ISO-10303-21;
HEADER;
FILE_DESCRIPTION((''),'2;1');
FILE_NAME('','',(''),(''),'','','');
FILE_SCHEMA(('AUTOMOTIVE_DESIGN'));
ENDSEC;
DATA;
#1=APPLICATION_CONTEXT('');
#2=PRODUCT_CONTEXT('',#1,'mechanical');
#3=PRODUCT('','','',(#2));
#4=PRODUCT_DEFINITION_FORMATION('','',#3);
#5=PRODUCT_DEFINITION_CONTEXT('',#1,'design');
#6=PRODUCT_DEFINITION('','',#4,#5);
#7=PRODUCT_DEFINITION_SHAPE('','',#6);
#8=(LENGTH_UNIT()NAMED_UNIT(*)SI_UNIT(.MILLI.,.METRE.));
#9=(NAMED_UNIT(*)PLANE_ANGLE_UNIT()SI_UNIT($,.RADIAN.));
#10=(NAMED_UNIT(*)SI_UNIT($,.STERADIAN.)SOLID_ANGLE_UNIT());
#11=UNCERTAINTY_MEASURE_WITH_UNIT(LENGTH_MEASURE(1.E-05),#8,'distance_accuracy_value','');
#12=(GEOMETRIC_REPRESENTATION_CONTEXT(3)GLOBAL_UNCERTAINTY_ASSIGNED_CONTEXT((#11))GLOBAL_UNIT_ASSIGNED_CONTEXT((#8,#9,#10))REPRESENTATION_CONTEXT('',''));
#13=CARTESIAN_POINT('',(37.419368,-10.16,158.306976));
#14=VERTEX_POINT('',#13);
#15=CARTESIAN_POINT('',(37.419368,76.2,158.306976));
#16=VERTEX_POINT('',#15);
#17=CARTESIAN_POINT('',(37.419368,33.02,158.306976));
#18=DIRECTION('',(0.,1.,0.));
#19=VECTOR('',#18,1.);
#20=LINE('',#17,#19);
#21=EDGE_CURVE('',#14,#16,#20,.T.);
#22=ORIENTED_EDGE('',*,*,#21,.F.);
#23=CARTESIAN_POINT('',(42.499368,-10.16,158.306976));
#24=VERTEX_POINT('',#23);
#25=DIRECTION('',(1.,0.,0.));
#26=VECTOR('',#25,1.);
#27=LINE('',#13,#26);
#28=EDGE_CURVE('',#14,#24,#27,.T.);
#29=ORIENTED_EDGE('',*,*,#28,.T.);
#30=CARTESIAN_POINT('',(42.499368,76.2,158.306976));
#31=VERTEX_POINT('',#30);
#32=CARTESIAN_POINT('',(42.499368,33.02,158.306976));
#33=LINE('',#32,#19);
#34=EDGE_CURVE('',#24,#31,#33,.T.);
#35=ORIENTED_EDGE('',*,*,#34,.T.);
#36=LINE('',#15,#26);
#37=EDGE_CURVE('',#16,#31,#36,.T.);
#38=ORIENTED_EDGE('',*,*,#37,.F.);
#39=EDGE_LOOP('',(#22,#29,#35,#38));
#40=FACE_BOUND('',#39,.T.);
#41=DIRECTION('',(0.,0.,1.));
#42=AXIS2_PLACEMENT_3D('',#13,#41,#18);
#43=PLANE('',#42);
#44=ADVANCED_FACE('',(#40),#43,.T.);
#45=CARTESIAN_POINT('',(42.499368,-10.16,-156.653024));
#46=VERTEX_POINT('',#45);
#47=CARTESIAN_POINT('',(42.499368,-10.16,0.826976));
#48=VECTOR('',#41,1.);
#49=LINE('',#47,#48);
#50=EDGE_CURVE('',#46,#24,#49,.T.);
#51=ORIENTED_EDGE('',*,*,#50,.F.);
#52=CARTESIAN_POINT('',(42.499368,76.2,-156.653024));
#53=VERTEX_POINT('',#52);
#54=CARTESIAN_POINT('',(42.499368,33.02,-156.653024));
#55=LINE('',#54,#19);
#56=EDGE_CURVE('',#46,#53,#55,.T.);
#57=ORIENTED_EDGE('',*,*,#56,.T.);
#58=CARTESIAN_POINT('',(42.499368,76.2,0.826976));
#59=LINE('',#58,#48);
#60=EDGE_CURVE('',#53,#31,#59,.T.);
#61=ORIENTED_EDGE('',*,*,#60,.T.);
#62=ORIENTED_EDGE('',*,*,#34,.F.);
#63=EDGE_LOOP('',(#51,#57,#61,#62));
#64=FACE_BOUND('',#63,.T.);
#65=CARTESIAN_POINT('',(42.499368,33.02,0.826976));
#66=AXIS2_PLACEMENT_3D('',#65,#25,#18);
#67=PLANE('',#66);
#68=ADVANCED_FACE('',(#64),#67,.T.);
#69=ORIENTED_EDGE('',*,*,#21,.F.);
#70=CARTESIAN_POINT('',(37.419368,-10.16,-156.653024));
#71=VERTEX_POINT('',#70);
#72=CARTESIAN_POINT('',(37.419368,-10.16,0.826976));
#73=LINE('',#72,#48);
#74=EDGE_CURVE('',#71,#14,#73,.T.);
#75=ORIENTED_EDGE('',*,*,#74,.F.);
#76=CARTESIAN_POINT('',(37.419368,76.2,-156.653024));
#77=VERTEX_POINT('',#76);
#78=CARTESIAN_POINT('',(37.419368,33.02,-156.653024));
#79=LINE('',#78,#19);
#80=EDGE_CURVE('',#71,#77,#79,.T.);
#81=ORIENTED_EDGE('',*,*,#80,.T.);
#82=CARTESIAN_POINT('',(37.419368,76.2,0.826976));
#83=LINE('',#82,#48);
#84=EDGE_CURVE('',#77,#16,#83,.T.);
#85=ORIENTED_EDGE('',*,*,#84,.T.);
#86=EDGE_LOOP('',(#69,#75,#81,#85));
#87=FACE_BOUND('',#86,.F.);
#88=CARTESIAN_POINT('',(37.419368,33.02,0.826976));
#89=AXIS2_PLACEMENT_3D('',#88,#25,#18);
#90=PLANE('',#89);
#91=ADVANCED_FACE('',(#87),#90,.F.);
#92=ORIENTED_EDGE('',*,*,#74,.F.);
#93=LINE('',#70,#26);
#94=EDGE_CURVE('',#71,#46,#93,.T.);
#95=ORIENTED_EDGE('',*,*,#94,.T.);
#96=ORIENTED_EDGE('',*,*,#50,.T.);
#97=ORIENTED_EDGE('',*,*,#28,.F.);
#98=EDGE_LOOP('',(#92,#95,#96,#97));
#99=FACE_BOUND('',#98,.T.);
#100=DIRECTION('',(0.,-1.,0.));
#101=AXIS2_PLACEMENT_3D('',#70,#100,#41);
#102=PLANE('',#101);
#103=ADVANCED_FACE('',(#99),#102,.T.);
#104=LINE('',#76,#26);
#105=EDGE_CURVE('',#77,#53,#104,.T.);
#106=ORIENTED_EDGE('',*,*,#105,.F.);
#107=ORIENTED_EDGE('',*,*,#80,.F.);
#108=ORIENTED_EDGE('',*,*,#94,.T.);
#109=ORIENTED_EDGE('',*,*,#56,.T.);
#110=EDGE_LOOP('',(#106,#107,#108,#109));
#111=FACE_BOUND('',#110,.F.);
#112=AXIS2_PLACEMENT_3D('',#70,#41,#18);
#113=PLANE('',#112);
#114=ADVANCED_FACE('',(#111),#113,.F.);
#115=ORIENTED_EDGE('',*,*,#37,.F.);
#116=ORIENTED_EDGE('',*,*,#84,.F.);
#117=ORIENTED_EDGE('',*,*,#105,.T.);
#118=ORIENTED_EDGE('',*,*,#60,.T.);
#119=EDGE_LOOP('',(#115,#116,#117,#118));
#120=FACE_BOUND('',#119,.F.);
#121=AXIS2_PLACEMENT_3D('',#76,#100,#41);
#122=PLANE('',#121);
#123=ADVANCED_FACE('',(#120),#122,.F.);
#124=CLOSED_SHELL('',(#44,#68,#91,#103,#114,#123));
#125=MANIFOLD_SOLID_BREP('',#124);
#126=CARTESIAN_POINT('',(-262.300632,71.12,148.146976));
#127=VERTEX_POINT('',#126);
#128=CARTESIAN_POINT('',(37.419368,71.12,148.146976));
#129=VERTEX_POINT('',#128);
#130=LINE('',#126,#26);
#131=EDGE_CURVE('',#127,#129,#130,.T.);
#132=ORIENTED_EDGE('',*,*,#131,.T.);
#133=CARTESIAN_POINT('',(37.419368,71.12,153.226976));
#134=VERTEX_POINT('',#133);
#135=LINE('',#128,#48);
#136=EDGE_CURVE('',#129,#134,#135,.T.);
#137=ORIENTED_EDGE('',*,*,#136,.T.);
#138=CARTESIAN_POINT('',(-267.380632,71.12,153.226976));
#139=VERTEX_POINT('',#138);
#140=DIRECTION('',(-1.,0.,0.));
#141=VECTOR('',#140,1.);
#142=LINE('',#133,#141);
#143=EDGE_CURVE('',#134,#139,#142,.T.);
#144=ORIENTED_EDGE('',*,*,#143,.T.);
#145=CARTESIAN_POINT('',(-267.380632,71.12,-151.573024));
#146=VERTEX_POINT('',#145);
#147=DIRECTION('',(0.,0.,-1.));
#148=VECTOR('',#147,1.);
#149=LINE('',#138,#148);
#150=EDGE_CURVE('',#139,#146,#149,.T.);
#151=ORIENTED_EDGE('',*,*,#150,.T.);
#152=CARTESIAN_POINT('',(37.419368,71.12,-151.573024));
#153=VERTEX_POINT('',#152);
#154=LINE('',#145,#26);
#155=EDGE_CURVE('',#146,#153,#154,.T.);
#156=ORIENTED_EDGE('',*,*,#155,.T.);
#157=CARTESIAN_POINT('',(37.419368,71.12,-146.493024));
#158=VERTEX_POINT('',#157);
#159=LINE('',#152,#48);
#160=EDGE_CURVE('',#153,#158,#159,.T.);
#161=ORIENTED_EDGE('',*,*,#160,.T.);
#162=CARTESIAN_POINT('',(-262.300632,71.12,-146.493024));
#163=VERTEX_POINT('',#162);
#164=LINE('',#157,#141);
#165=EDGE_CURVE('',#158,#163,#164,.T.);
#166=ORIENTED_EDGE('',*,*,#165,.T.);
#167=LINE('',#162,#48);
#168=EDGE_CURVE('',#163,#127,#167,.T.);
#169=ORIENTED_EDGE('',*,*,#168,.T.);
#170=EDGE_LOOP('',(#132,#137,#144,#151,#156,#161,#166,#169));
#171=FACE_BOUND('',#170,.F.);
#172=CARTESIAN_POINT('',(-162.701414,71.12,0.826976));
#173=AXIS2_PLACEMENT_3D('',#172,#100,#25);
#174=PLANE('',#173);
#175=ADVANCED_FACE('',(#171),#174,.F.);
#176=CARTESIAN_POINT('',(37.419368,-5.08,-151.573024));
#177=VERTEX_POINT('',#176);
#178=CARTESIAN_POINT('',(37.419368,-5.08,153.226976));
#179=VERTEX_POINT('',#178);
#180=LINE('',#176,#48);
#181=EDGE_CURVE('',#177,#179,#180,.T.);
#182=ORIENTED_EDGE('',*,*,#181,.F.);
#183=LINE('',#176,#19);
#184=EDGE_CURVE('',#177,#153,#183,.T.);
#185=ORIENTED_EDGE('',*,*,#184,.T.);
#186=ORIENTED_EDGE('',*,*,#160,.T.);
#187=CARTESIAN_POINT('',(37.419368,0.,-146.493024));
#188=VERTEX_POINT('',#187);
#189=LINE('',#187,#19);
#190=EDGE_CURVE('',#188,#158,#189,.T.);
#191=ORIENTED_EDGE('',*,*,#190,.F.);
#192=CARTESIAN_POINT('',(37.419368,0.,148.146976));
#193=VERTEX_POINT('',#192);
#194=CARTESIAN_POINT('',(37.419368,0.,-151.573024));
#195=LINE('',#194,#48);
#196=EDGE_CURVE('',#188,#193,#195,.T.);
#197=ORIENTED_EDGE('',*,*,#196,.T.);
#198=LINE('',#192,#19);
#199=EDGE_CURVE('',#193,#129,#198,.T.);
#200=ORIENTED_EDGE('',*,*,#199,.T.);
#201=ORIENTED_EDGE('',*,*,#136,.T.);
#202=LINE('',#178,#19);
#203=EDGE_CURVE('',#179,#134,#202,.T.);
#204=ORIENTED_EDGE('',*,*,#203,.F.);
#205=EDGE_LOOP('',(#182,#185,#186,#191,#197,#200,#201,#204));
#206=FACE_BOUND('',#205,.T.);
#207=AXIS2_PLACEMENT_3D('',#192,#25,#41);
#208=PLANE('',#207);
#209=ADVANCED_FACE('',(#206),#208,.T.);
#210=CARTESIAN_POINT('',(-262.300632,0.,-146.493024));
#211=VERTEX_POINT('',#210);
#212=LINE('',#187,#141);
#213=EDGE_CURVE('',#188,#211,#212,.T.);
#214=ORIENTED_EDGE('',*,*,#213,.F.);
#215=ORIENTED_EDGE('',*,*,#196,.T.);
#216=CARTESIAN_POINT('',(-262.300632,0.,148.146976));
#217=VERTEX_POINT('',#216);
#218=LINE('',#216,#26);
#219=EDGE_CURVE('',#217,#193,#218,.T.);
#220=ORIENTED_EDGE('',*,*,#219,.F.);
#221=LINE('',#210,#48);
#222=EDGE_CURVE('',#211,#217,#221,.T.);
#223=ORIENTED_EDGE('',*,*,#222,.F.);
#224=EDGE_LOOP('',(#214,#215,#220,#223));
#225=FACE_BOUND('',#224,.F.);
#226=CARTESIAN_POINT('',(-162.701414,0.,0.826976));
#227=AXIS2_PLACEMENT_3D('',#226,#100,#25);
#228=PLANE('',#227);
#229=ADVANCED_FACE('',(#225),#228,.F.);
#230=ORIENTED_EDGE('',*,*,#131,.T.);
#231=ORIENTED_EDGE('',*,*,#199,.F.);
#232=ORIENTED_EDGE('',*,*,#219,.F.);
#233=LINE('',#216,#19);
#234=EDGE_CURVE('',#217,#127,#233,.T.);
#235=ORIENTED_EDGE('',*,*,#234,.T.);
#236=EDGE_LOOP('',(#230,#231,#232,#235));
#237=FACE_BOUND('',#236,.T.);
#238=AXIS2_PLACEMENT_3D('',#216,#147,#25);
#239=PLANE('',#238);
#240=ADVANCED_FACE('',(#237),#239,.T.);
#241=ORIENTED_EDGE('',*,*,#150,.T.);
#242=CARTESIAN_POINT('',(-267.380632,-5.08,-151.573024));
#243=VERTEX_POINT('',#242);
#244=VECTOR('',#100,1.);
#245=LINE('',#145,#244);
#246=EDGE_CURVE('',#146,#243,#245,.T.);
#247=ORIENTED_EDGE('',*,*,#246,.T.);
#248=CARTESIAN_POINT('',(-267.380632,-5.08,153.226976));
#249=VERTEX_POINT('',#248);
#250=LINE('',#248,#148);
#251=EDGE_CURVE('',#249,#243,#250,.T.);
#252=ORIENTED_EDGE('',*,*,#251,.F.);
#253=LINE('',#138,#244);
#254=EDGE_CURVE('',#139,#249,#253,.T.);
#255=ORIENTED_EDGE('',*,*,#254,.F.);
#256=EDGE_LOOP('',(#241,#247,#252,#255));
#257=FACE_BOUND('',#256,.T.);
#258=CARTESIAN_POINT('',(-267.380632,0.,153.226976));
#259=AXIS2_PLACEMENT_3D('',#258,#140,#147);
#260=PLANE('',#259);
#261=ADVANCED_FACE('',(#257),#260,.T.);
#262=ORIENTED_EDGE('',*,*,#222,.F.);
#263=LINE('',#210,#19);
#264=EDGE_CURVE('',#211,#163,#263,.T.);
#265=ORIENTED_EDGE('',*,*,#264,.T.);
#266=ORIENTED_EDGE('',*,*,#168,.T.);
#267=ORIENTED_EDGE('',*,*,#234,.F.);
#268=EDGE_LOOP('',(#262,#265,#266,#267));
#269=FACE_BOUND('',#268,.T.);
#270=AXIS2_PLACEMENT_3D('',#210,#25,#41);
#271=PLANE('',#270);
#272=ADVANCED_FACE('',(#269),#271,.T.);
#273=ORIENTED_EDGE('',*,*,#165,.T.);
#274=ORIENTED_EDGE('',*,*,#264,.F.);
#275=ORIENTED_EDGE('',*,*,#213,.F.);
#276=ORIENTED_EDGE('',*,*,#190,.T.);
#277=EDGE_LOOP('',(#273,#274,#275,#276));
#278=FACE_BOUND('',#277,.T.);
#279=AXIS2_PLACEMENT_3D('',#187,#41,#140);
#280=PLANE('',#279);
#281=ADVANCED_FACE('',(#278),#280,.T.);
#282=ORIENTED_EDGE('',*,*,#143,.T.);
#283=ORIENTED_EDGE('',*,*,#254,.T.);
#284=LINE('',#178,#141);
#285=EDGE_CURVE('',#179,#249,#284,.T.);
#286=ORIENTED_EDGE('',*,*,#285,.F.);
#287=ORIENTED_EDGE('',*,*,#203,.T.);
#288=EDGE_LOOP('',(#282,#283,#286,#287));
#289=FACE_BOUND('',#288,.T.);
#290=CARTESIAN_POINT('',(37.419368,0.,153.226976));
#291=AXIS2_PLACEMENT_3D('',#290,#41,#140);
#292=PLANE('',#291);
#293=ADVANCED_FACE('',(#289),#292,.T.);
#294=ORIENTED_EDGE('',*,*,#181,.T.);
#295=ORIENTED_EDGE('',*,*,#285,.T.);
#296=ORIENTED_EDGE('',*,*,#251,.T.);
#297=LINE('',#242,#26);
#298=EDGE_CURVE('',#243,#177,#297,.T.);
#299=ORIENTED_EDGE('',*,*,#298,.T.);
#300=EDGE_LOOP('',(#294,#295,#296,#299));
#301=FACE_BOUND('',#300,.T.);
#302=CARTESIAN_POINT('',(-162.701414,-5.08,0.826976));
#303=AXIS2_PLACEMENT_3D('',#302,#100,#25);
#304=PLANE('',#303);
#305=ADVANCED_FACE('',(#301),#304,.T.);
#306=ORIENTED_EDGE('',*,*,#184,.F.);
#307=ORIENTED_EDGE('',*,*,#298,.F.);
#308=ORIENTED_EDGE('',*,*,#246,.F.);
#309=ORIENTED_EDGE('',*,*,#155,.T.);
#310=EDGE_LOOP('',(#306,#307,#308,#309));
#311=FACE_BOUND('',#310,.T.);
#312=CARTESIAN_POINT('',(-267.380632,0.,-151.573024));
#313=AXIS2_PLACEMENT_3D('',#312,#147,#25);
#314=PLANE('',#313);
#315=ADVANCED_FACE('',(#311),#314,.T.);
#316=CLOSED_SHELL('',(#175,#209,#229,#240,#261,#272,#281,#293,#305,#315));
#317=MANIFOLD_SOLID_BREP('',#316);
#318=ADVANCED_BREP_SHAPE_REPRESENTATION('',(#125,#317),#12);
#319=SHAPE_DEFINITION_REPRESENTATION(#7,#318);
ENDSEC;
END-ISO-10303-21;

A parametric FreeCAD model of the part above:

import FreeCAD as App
import Part
import Sketcher

V = App.Vector
Q = App.Units.Quantity

doc = App.newDocument("Part")
params = doc.addObject("Spreadsheet::Sheet", "Params")
for row, (alias, value) in enumerate([
    ("sketch1_width", "12 in"),
    ("pad1_length", "0.2 in"),
    ("sketch2_width", "12 in"),
    ("sketch2_width2", "11.8 in"),
    ("sketch2_height", "0.2 in"),
    ("pad2_length", "2.8 in"),
    ("sketch3_width", "3.4 in"),
    ("sketch3_height", "12.4 in"),
    ("pad3_length", "0.2 in"),
], start=1):
    params.set(f"A{row}", alias)
    params.set(f"B{row}", "=" + value)
    params.setAlias(f"B{row}", alias)

body = doc.addObject("PartDesign::Body", "Body")

sketch1 = body.newObject("Sketcher::SketchObject", "Sketch")
sketch1.AttachmentSupport = (doc.getObject("XZ_Plane"), [""])
sketch1.MapMode = "FlatFace"
sketch1.addGeometry([
    Part.LineSegment(V(37.419368, 153.226976, 0), V(-267.380632, 153.226976, 0)),
    Part.LineSegment(V(-267.380632, 153.226976, 0), V(-267.380632, -151.573024, 0)),
    Part.LineSegment(V(-267.380632, -151.573024, 0), V(37.419368, -151.573024, 0)),
    Part.LineSegment(V(37.419368, -151.573024, 0), V(37.419368, 153.226976, 0)),
], False)
sketch1.addConstraint([
    Sketcher.Constraint("Coincident", 0, 2, 1, 1),
    Sketcher.Constraint("Coincident", 1, 2, 2, 1),
    Sketcher.Constraint("Coincident", 2, 2, 3, 1),
    Sketcher.Constraint("Coincident", 3, 2, 0, 1),
    Sketcher.Constraint("Horizontal", 0),
    Sketcher.Constraint("Vertical", 1),
    Sketcher.Constraint("Horizontal", 2),
    Sketcher.Constraint("Vertical", 3),
    Sketcher.Constraint("Equal", 2, 1),
    Sketcher.Constraint("DistanceX", 0, 2, 0, 1, Q("12 in")),
    Sketcher.Constraint("DistanceX", 0, 2, -1, 1, 267.380632),
    Sketcher.Constraint("DistanceY", -1, 1, 0, 2, 153.226976),
])
sketch1.setExpression("Constraints[9]", "Params.sketch1_width")
pad1 = body.newObject("PartDesign::Pad", "Pad")
pad1.Profile = sketch1
pad1.setExpression("Length", "Params.pad1_length")

sketch2 = body.newObject("Sketcher::SketchObject", "Sketch001")
sketch2.AttachmentSupport = (doc.getObject("XZ_Plane"), [""])
sketch2.MapMode = "FlatFace"
sketch2.addGeometry([
    Part.LineSegment(V(37.419368, 153.226976, 0), V(-267.380632, 153.226976, 0)),
    Part.LineSegment(V(-267.380632, 153.226976, 0), V(-267.380632, -151.573024, 0)),
    Part.LineSegment(V(-267.380632, -151.573024, 0), V(37.419368, -151.573024, 0)),
    Part.LineSegment(V(37.419368, -151.573024, 0), V(37.419368, -146.493024, 0)),
    Part.LineSegment(V(37.419368, -146.493024, 0), V(-262.300632, -146.493024, 0)),
    Part.LineSegment(V(-262.300632, -146.493024, 0), V(-262.300632, 148.146976, 0)),
    Part.LineSegment(V(-262.300632, 148.146976, 0), V(37.419368, 148.146976, 0)),
    Part.LineSegment(V(37.419368, 148.146976, 0), V(37.419368, 153.226976, 0)),
], False)
sketch2.addConstraint([
    Sketcher.Constraint("Coincident", 0, 2, 1, 1),
    Sketcher.Constraint("Coincident", 1, 2, 2, 1),
    Sketcher.Constraint("Coincident", 2, 2, 3, 1),
    Sketcher.Constraint("Coincident", 3, 2, 4, 1),
    Sketcher.Constraint("Coincident", 4, 2, 5, 1),
    Sketcher.Constraint("Coincident", 5, 2, 6, 1),
    Sketcher.Constraint("Coincident", 6, 2, 7, 1),
    Sketcher.Constraint("Coincident", 7, 2, 0, 1),
    Sketcher.Constraint("Horizontal", 0),
    Sketcher.Constraint("Vertical", 1),
    Sketcher.Constraint("Horizontal", 2),
    Sketcher.Constraint("Vertical", 3),
    Sketcher.Constraint("Horizontal", 4),
    Sketcher.Constraint("Vertical", 5),
    Sketcher.Constraint("Horizontal", 6),
    Sketcher.Constraint("Vertical", 7),
    Sketcher.Constraint("Vertical", 3, 2, 6, 2),
    Sketcher.Constraint("Equal", 2, 1),
    Sketcher.Constraint("Equal", 3, 7),
    Sketcher.Constraint("DistanceX", 0, 2, 0, 1, Q("12 in")),
    Sketcher.Constraint("DistanceX", 4, 2, 4, 1, Q("11.8 in")),
    Sketcher.Constraint("DistanceY", 3, 1, 3, 2, Q("0.2 in")),
    Sketcher.Constraint("DistanceX", 0, 2, -1, 1, 267.380632),
    Sketcher.Constraint("DistanceY", -1, 1, 0, 2, 153.226976),
])
sketch2.setExpression("Constraints[19]", "Params.sketch2_width")
sketch2.setExpression("Constraints[20]", "Params.sketch2_width2")
sketch2.setExpression("Constraints[21]", "Params.sketch2_height")
pad2 = body.newObject("PartDesign::Pad", "Pad001")
pad2.Profile = sketch2
pad2.setExpression("Length", "Params.pad2_length")
pad2.Reversed = True
body2 = doc.addObject("PartDesign::Body", "Body001")

sketch3 = body2.newObject("Sketcher::SketchObject", "Sketch002")
sketch3.AttachmentSupport = (doc.getObject("YZ_Plane001"), [""])
sketch3.MapMode = "FlatFace"
sketch3.AttachmentOffset = App.Placement(V(0, 0, 37.419368), App.Rotation())
sketch3.addGeometry([
    Part.LineSegment(V(-10.16, 158.306976, 0), V(-10.16, -156.653024, 0)),
    Part.LineSegment(V(-10.16, -156.653024, 0), V(76.2, -156.653024, 0)),
    Part.LineSegment(V(76.2, -156.653024, 0), V(76.2, 158.306976, 0)),
    Part.LineSegment(V(76.2, 158.306976, 0), V(-10.16, 158.306976, 0)),
], False)
sketch3.addConstraint([
    Sketcher.Constraint("Coincident", 0, 2, 1, 1),
    Sketcher.Constraint("Coincident", 1, 2, 2, 1),
    Sketcher.Constraint("Coincident", 2, 2, 3, 1),
    Sketcher.Constraint("Coincident", 3, 2, 0, 1),
    Sketcher.Constraint("Vertical", 0),
    Sketcher.Constraint("Horizontal", 1),
    Sketcher.Constraint("Vertical", 2),
    Sketcher.Constraint("Horizontal", 3),
    Sketcher.Constraint("DistanceX", 1, 1, 1, 2, Q("3.4 in")),
    Sketcher.Constraint("DistanceY", 0, 2, 0, 1, Q("12.4 in")),
    Sketcher.Constraint("DistanceX", -1, 1, 1, 2, Q("3 in")),
    Sketcher.Constraint("DistanceY", 0, 2, -1, 1, 156.653024),
])
sketch3.setExpression("Constraints[8]", "Params.sketch3_width")
sketch3.setExpression("Constraints[9]", "Params.sketch3_height")
pad3 = body2.newObject("PartDesign::Pad", "Pad002")
pad3.Profile = sketch3
pad3.setExpression("Length", "Params.pad3_length")

doc.recompute()
